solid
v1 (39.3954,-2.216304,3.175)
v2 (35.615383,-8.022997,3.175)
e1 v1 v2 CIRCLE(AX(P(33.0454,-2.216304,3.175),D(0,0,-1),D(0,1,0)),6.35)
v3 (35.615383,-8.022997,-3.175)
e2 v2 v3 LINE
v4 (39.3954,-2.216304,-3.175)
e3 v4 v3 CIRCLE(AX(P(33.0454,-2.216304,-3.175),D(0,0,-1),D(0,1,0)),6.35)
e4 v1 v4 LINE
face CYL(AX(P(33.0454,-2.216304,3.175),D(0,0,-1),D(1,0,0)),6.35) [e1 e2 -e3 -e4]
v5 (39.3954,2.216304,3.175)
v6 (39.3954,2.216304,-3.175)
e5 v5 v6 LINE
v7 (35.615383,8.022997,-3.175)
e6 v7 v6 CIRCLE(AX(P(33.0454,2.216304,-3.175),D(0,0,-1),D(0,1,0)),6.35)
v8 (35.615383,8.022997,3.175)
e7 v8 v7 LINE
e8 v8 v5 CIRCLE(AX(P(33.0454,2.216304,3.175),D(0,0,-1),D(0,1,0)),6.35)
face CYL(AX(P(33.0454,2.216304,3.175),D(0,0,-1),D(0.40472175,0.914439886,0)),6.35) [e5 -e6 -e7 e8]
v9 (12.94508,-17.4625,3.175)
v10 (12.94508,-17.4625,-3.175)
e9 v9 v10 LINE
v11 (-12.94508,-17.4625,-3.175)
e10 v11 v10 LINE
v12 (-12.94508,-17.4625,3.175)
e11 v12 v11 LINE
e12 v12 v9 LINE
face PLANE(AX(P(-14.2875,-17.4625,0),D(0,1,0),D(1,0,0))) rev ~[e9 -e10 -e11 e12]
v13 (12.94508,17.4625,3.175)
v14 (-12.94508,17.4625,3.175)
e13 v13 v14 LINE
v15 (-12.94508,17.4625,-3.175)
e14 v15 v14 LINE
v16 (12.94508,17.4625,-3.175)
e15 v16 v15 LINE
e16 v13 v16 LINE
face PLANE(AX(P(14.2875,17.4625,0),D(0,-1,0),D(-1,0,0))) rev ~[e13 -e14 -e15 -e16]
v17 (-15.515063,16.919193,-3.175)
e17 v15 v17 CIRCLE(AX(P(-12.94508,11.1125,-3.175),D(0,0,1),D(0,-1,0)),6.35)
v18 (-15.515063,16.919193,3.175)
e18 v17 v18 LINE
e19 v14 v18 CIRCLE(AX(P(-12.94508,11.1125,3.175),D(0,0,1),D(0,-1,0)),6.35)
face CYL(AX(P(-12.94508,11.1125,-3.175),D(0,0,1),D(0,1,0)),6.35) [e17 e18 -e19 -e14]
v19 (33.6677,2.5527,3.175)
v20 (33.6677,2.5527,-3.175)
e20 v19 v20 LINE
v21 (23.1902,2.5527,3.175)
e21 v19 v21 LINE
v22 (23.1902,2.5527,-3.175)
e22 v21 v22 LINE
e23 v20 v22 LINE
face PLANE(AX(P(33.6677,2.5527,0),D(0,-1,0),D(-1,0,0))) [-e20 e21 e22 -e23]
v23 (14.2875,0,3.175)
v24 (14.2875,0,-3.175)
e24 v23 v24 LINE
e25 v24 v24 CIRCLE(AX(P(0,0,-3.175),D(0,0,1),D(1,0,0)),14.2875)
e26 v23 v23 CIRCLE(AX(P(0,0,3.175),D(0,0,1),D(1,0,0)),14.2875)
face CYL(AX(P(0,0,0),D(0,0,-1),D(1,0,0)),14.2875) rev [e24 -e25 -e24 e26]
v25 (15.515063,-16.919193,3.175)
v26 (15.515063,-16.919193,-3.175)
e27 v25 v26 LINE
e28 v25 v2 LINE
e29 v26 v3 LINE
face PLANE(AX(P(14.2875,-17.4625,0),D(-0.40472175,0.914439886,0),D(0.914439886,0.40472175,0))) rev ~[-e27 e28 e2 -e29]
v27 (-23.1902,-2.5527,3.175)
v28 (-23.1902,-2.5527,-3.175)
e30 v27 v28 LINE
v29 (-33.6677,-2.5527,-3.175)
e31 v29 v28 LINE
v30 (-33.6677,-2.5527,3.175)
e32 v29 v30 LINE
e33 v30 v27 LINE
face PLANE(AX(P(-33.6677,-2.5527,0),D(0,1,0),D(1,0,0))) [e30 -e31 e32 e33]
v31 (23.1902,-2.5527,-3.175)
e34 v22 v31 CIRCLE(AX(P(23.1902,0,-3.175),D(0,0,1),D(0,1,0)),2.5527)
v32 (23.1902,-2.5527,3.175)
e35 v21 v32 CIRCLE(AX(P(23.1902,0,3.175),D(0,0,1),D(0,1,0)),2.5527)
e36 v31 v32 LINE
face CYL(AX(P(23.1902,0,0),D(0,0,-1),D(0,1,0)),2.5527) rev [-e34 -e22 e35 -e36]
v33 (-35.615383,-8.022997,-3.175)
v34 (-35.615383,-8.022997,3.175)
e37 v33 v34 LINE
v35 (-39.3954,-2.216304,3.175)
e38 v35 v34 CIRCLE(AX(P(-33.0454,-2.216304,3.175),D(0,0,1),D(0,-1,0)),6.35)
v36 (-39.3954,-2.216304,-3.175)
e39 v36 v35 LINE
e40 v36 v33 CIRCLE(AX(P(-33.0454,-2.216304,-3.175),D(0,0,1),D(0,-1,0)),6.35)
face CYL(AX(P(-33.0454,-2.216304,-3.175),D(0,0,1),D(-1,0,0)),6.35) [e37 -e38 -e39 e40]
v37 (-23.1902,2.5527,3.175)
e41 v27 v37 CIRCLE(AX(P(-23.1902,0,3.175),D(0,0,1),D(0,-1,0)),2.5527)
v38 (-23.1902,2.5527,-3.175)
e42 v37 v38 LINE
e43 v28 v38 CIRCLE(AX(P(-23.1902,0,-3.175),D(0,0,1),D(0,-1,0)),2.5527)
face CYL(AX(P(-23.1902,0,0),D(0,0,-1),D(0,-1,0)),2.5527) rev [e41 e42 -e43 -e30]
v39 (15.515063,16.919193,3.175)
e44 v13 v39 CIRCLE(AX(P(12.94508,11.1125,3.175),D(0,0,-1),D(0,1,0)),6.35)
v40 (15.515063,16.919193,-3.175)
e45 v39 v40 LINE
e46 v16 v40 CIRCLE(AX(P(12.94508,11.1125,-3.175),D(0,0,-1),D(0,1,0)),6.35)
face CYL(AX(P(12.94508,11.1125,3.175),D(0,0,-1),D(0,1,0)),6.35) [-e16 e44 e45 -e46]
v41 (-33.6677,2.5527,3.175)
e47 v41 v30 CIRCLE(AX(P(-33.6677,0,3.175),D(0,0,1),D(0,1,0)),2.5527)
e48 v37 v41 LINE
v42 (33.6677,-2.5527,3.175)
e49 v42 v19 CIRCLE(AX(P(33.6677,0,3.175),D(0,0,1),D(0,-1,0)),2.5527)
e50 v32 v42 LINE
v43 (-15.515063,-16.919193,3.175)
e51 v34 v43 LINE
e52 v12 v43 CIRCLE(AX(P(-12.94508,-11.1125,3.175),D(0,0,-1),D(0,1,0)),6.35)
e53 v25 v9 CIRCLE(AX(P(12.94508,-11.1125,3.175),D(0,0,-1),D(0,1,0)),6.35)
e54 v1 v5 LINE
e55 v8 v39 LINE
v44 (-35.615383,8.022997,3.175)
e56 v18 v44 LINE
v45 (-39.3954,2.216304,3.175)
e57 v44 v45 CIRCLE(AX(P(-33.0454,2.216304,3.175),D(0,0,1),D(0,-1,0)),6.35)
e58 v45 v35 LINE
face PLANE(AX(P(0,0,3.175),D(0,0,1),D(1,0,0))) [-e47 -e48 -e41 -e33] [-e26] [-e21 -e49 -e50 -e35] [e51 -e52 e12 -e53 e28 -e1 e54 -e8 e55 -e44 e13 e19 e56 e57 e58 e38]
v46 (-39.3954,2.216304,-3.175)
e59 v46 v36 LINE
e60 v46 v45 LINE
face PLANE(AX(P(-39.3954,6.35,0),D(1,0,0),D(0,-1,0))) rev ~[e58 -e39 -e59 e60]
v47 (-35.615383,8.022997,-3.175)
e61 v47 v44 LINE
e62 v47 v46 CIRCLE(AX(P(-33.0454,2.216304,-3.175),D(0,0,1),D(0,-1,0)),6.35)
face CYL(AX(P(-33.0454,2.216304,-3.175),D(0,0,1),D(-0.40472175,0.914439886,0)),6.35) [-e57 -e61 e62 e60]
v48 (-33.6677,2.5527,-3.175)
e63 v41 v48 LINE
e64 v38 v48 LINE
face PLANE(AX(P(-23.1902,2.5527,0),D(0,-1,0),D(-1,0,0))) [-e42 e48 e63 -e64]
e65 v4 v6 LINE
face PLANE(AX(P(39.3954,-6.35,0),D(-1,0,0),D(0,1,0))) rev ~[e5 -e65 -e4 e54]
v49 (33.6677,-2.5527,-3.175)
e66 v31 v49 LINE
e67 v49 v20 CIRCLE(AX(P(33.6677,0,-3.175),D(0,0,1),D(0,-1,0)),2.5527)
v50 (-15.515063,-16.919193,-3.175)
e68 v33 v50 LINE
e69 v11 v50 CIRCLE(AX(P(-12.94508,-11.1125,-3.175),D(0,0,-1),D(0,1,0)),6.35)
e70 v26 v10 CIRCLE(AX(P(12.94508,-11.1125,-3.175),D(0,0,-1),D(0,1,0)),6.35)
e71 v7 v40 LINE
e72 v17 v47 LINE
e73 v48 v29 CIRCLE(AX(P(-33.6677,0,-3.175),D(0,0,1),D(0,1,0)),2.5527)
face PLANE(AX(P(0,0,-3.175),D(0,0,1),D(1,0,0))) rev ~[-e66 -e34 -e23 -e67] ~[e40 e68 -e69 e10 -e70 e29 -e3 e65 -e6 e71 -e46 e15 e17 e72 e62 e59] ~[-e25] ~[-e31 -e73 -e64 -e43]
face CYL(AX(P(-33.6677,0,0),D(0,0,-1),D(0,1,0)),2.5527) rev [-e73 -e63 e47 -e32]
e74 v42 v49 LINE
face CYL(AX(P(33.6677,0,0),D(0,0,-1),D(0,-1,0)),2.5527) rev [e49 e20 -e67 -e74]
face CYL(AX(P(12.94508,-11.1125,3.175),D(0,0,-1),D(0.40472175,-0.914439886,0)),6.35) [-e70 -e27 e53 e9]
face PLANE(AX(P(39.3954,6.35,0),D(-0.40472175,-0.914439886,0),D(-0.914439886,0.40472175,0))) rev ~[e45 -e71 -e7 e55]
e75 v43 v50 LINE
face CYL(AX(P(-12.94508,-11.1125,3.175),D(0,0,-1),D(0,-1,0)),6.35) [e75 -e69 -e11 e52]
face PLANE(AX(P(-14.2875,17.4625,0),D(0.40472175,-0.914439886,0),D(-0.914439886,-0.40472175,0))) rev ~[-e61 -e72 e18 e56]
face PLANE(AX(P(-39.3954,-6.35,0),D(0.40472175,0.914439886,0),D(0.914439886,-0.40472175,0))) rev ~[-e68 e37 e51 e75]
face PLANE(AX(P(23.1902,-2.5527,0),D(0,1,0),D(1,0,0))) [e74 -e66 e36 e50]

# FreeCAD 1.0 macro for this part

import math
import FreeCAD as App
import Part
import Sketcher
from FreeCAD import Vector
Q = App.Units.Quantity


def edges_at(feature, points):
    """Names of the edges that pass closest to the given points."""
    edges = feature.Shape.Edges
    near = lambda p: min(range(len(edges)), key=lambda i: edges[i].distToShape(Part.Vertex(*p))[0])
    return sorted({f"Edge{near(p) + 1}" for p in points})

doc = App.newDocument("Part")
params = doc.addObject("Spreadsheet::Sheet", "Params")
for row, (alias, value) in enumerate([
    ("sketch1_diameter", "1.125 in"),
    ("sketch1_height", "0.5 in"),
    ("sketch1_width", "1.125 in"),
    ("sketch1_length", "1.081 in"),
    ("pad1_length", "0.25 in"),
    ("fillet_radius", "0.25 in"),
], start=1):
    params.set(f"A{row}", alias)
    params.set(f"B{row}", "=" + value)
    params.setAlias(f"B{row}", alias)

body = doc.addObject("PartDesign::Body", "Body")

# Sketch on XY plane
sketch1 = doc.addObject("Sketcher::SketchObject", "Sketch")
body.addObject(sketch1)
sketch1.AttachmentSupport = (doc.XY_Plane, [""])
sketch1.MapMode = "FlatFace"
sketch1.addGeometry([
    Part.LineSegment(Vector(14.2875, 17.4625, 0), Vector(-14.2875, 17.4625, 0)),  # 0
    Part.LineSegment(Vector(-14.2875, 17.4625, 0), Vector(-39.3954, 6.35, 0)),  # 1
    Part.LineSegment(Vector(-39.3954, 6.35, 0), Vector(-39.3954, -6.35, 0)),  # 2
    Part.LineSegment(Vector(-39.3954, -6.35, 0), Vector(-14.2875, -17.4625, 0)),  # 3
    Part.LineSegment(Vector(-14.2875, -17.4625, 0), Vector(14.2875, -17.4625, 0)),  # 4
    Part.LineSegment(Vector(14.2875, -17.4625, 0), Vector(39.3954, -6.35, 0)),  # 5
    Part.LineSegment(Vector(39.3954, -6.35, 0), Vector(39.3954, 6.35, 0)),  # 6
    Part.LineSegment(Vector(39.3954, 6.35, 0), Vector(14.2875, 17.4625, 0)),  # 7
    Part.LineSegment(Vector(-23.1902, -2.5527, 0), Vector(-33.6677, -2.5527, 0)),  # 8
    Part.ArcOfCircle(Part.Circle(Vector(-33.6677, 0, 0), Vector(0, 0, 1), 2.5527), math.radians(90), math.radians(270)),  # 9
    Part.LineSegment(Vector(-33.6677, 2.5527, 0), Vector(-23.1902, 2.5527, 0)),  # 10
    Part.ArcOfCircle(Part.Circle(Vector(-23.1902, 0, 0), Vector(0, 0, 1), 2.5527), math.radians(-90), math.radians(90)),  # 11
    Part.Circle(Vector(0, 0, 0), Vector(0, 0, 1), 14.2875),  # 12
    Part.LineSegment(Vector(33.6677, -2.5527, 0), Vector(23.1902, -2.5527, 0)),  # 13
    Part.ArcOfCircle(Part.Circle(Vector(23.1902, 0, 0), Vector(0, 0, 1), 2.5527), math.radians(90), math.radians(270)),  # 14
    Part.LineSegment(Vector(23.1902, 2.5527, 0), Vector(33.6677, 2.5527, 0)),  # 15
    Part.ArcOfCircle(Part.Circle(Vector(33.6677, 0, 0), Vector(0, 0, 1), 2.5527), math.radians(-90), math.radians(90)),  # 16
], False)
sketch1.addConstraint([
    Sketcher.Constraint("Coincident", 0, 2, 1, 1),
    Sketcher.Constraint("Coincident", 1, 2, 2, 1),
    Sketcher.Constraint("Coincident", 2, 2, 3, 1),
    Sketcher.Constraint("Coincident", 3, 2, 4, 1),
    Sketcher.Constraint("Coincident", 4, 2, 5, 1),
    Sketcher.Constraint("Coincident", 5, 2, 6, 1),
    Sketcher.Constraint("Coincident", 6, 2, 7, 1),
    Sketcher.Constraint("Coincident", 7, 2, 0, 1),
    Sketcher.Constraint("Tangent", 8, 2, 9, 2),
    Sketcher.Constraint("Tangent", 9, 1, 10, 1),
    Sketcher.Constraint("Tangent", 10, 2, 11, 2),
    Sketcher.Constraint("Tangent", 11, 1, 8, 1),
    Sketcher.Constraint("Tangent", 13, 2, 14, 2),
    Sketcher.Constraint("Tangent", 14, 1, 15, 1),
    Sketcher.Constraint("Tangent", 15, 2, 16, 2),
    Sketcher.Constraint("Tangent", 16, 1, 13, 1),
    Sketcher.Constraint("Horizontal", 0),
    Sketcher.Constraint("Vertical", 2),
    Sketcher.Constraint("Horizontal", 4),
    Sketcher.Constraint("Vertical", 6),
    Sketcher.Constraint("Horizontal", 8),
    Sketcher.Constraint("Horizontal", 10),
    Sketcher.Constraint("Horizontal", 13),
    Sketcher.Constraint("Horizontal", 15),
    Sketcher.Constraint("Coincident", 12, 3, -1, 1),
    Sketcher.Constraint("Equal", 11, 14),
    Sketcher.Constraint("Symmetric", 11, 3, 14, 3, -1, 1),
    Sketcher.Constraint("Symmetric", 0, 2, 4, 2, -1, 1),
    Sketcher.Constraint("Symmetric", 1, 2, 5, 2, -1, 1),
    Sketcher.Constraint("Symmetric", 9, 3, 16, 3, -2),
    Sketcher.Constraint("Parallel", 3, 7),
    Sketcher.Constraint("Horizontal", 2, 2, 5, 2),
    Sketcher.Constraint("Horizontal", 1, 2, 6, 2),
    Sketcher.Constraint("Vertical", 0, 2, 3, 2),
    Sketcher.Constraint("Diameter", 12, Q("1.125 in")),
    Sketcher.Constraint("DistanceY", 2, 2, 2, 1, Q("0.5 in")),
    Sketcher.Constraint("Radius", 9, Q("0.1005 in")),
    Sketcher.Constraint("DistanceX", 0, 2, 0, 1, Q("1.125 in")),
    Sketcher.Constraint("DistanceX", 8, 2, 8, 1, Q("0.4125 in")),
    Sketcher.Constraint("DistanceY", -1, 1, 0, 2, Q("0.6875 in")),
    Sketcher.Constraint("DistanceX", 1, 2, 9, 3, Q("0.2255 in")),
    Sketcher.Constraint("Distance", 1, Q("1.081 in")),
])
sketch1.setExpression("Constraints[34]", "Params.sketch1_diameter")
sketch1.setExpression("Constraints[35]", "Params.sketch1_height")
sketch1.setExpression("Constraints[37]", "Params.sketch1_width")
sketch1.setExpression("Constraints[41]", "Params.sketch1_length")
pad1 = doc.addObject("PartDesign::Pad", "Pad")
body.addObject(pad1)
pad1.Profile = sketch1
pad1.setExpression("Length", "Params.pad1_length")
pad1.Midplane = True
doc.recompute()

fillet = doc.addObject("PartDesign::Fillet", "Fillet")
body.addObject(fillet)
fillet.Base = (pad1, edges_at(pad1, [
    (-14.287, 17.462, 0),
    (14.287, 17.462, 0),
    (39.395, 6.35, 0),
    (39.395, -6.35, 0),
    (14.287, -17.462, 0),
    (-14.287, -17.462, 0),
    (-39.395, -6.35, 0),
    (-39.395, 6.35, 0),
]))
fillet.setExpression("Radius", "Params.fillet_radius")

doc.recompute()
